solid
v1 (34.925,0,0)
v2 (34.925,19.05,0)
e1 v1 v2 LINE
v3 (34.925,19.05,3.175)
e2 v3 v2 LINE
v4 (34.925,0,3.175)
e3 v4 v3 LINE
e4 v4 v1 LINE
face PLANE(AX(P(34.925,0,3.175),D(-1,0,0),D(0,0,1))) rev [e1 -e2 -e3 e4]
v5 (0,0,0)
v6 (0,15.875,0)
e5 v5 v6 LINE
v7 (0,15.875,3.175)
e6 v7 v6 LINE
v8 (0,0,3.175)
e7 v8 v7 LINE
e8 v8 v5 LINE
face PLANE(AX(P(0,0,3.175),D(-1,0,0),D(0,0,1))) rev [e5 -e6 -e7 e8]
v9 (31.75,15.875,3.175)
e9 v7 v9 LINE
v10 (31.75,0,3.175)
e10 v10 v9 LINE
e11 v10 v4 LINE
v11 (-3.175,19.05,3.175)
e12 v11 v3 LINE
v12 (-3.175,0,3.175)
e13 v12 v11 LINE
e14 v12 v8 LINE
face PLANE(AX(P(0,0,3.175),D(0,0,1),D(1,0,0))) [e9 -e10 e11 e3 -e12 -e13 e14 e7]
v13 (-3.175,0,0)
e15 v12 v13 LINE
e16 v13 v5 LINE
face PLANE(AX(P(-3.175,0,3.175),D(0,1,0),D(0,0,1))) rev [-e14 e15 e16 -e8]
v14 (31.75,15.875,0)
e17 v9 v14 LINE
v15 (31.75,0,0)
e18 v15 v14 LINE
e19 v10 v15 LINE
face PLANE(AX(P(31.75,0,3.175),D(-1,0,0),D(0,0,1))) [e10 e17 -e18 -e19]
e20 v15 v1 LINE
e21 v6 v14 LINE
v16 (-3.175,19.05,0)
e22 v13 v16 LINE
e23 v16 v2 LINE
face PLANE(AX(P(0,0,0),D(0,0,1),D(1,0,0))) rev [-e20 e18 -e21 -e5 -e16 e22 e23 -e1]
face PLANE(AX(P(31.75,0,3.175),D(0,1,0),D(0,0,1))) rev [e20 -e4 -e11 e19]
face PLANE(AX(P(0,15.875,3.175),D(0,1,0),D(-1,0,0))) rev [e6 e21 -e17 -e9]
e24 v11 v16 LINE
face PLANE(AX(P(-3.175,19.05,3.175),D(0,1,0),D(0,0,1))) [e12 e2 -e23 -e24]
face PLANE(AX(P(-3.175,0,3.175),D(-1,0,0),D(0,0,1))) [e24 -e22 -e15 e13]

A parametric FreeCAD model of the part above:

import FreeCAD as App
import Part
import Sketcher
from FreeCAD import Vector
Q = App.Units.Quantity

doc = App.newDocument("Part")
params = doc.addObject("Spreadsheet::Sheet", "Params")
for row, (alias, value) in enumerate([
    ("sketch1_width", "1.5 in"),
    ("sketch1_width2", "1.25 in"),
    ("sketch1_height", "0.75 in"),
    ("sketch1_height2", "0.625 in"),
    ("pad1_length", "0.125 in"),
], start=1):
    params.set(f"A{row}", alias)
    params.set(f"B{row}", "=" + value)
    params.setAlias(f"B{row}", alias)

body = doc.addObject("PartDesign::Body", "Body")

# Sketch on XY plane
sketch1 = doc.addObject("Sketcher::SketchObject", "Sketch")
body.addObject(sketch1)
sketch1.AttachmentSupport = (doc.XY_Plane, [""])
sketch1.MapMode = "FlatFace"
sketch1.addGeometry(Part.LineSegment(Vector(-3.2, 19.1, 0), Vector(-3.2, 0, 0)), False)
sketch1.addGeometry(Part.LineSegment(Vector(-3.2, 0, 0), Vector(0, 0, 0)), False)
sketch1.addGeometry(Part.LineSegment(Vector(0, 0, 0), Vector(0, 15.9, 0)), False)
sketch1.addGeometry(Part.LineSegment(Vector(0, 15.9, 0), Vector(31.8, 15.9, 0)), False)
sketch1.addGeometry(Part.LineSegment(Vector(31.8, 15.9, 0), Vector(31.8, 0, 0)), False)
sketch1.addGeometry(Part.LineSegment(Vector(31.8, 0, 0), Vector(34.9, 0, 0)), False)
sketch1.addGeometry(Part.LineSegment(Vector(34.9, 0, 0), Vector(34.9, 19.1, 0)), False)
sketch1.addGeometry(Part.LineSegment(Vector(34.9, 19.1, 0), Vector(-3.2, 19.1, 0)), False)
sketch1.addConstraint(Sketcher.Constraint("Coincident", 0, 2, 1, 1))
sketch1.addConstraint(Sketcher.Constraint("Coincident", 1, 2, 2, 1))
sketch1.addConstraint(Sketcher.Constraint("Coincident", 2, 2, 3, 1))
sketch1.addConstraint(Sketcher.Constraint("Coincident", 3, 2, 4, 1))
sketch1.addConstraint(Sketcher.Constraint("Coincident", 4, 2, 5, 1))
sketch1.addConstraint(Sketcher.Constraint("Coincident", 5, 2, 6, 1))
sketch1.addConstraint(Sketcher.Constraint("Coincident", 6, 2, 7, 1))
sketch1.addConstraint(Sketcher.Constraint("Coincident", 7, 2, 0, 1))
sketch1.addConstraint(Sketcher.Constraint("Vertical", 0))
sketch1.addConstraint(Sketcher.Constraint("Horizontal", 1))
sketch1.addConstraint(Sketcher.Constraint("Vertical", 2))
sketch1.addConstraint(Sketcher.Constraint("Horizontal", 3))
sketch1.addConstraint(Sketcher.Constraint("Vertical", 4))
sketch1.addConstraint(Sketcher.Constraint("Horizontal", 5))
sketch1.addConstraint(Sketcher.Constraint("Vertical", 6))
sketch1.addConstraint(Sketcher.Constraint("Horizontal", 7))
sketch1.addConstraint(Sketcher.Constraint("Coincident", 1, 2, -1, 1))
sketch1.addConstraint(Sketcher.Constraint("PointOnObject", 4, 2, -1))
sketch1.addConstraint(Sketcher.Constraint("Equal", 1, 5))
sketch1.addConstraint(Sketcher.Constraint("DistanceX", 7, 2, 7, 1, Q("1.5 in")))
sketch1.addConstraint(Sketcher.Constraint("DistanceX", 3, 1, 3, 2, Q("1.25 in")))
sketch1.addConstraint(Sketcher.Constraint("DistanceY", 0, 2, 0, 1, Q("0.75 in")))
sketch1.addConstraint(Sketcher.Constraint("DistanceY", 2, 1, 2, 2, Q("0.625 in")))
sketch1.setExpression("Constraints[19]", "Params.sketch1_width")
sketch1.setExpression("Constraints[20]", "Params.sketch1_width2")
sketch1.setExpression("Constraints[21]", "Params.sketch1_height")
sketch1.setExpression("Constraints[22]", "Params.sketch1_height2")
pad1 = doc.addObject("PartDesign::Pad", "Pad")
body.addObject(pad1)
pad1.Profile = sketch1
pad1.setExpression("Length", "Params.pad1_length")

doc.recompute()
